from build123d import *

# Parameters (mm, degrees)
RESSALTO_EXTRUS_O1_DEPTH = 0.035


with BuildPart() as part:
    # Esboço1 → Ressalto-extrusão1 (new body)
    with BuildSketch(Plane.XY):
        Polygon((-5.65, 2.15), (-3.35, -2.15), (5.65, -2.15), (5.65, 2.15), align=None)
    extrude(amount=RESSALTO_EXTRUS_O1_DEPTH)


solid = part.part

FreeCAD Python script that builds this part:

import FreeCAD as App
import Part
import Sketcher

V = App.Vector


def add_polygon(sketch, points):
    """Adds a closed chain of lines whose ends are joined by coincident constraints."""
    first, n = sketch.GeometryCount, len(points)
    for a, b in zip(points, points[1:] + points[:1]):
        sketch.addGeometry(Part.LineSegment(App.Vector(*a, 0), App.Vector(*b, 0)), False)
    for i in range(n):
        sketch.addConstraint(Sketcher.Constraint("Coincident", first + i, 2, first + (i + 1) % n, 1))

doc = App.newDocument("Part")
body = doc.addObject("PartDesign::Body", "Body")

# Sketch on XY plane
sketch1 = body.newObject("Sketcher::SketchObject", "Sketch")
sketch1.AttachmentSupport = (doc.getObject("XY_Plane"), [""])
sketch1.MapMode = "FlatFace"
add_polygon(sketch1, [(-5.7, 2.1), (-3.4, -2.1), (5.7, -2.1), (5.7, 2.1)])  # lines 0-3
sketch1.addConstraint(Sketcher.Constraint("Horizontal", 1))
sketch1.addConstraint(Sketcher.Constraint("Vertical", 2))
sketch1.addConstraint(Sketcher.Constraint("Horizontal", 3))
sketch1.addConstraint(Sketcher.Constraint("Symmetric", 1, 2, 3, 2, -1, 1))
sketch1.addConstraint(Sketcher.Constraint("DistanceX", 1, 1, 1, 2, 9.0))
sketch1.addConstraint(Sketcher.Constraint("DistanceX", 3, 2, 3, 1, 11.3))
sketch1.addConstraint(Sketcher.Constraint("DistanceY", 2, 1, 2, 2, 4.3))
pad1 = body.newObject("PartDesign::Pad", "Pad")
pad1.Profile = sketch1
pad1.Length = 0.035

doc.recompute()
